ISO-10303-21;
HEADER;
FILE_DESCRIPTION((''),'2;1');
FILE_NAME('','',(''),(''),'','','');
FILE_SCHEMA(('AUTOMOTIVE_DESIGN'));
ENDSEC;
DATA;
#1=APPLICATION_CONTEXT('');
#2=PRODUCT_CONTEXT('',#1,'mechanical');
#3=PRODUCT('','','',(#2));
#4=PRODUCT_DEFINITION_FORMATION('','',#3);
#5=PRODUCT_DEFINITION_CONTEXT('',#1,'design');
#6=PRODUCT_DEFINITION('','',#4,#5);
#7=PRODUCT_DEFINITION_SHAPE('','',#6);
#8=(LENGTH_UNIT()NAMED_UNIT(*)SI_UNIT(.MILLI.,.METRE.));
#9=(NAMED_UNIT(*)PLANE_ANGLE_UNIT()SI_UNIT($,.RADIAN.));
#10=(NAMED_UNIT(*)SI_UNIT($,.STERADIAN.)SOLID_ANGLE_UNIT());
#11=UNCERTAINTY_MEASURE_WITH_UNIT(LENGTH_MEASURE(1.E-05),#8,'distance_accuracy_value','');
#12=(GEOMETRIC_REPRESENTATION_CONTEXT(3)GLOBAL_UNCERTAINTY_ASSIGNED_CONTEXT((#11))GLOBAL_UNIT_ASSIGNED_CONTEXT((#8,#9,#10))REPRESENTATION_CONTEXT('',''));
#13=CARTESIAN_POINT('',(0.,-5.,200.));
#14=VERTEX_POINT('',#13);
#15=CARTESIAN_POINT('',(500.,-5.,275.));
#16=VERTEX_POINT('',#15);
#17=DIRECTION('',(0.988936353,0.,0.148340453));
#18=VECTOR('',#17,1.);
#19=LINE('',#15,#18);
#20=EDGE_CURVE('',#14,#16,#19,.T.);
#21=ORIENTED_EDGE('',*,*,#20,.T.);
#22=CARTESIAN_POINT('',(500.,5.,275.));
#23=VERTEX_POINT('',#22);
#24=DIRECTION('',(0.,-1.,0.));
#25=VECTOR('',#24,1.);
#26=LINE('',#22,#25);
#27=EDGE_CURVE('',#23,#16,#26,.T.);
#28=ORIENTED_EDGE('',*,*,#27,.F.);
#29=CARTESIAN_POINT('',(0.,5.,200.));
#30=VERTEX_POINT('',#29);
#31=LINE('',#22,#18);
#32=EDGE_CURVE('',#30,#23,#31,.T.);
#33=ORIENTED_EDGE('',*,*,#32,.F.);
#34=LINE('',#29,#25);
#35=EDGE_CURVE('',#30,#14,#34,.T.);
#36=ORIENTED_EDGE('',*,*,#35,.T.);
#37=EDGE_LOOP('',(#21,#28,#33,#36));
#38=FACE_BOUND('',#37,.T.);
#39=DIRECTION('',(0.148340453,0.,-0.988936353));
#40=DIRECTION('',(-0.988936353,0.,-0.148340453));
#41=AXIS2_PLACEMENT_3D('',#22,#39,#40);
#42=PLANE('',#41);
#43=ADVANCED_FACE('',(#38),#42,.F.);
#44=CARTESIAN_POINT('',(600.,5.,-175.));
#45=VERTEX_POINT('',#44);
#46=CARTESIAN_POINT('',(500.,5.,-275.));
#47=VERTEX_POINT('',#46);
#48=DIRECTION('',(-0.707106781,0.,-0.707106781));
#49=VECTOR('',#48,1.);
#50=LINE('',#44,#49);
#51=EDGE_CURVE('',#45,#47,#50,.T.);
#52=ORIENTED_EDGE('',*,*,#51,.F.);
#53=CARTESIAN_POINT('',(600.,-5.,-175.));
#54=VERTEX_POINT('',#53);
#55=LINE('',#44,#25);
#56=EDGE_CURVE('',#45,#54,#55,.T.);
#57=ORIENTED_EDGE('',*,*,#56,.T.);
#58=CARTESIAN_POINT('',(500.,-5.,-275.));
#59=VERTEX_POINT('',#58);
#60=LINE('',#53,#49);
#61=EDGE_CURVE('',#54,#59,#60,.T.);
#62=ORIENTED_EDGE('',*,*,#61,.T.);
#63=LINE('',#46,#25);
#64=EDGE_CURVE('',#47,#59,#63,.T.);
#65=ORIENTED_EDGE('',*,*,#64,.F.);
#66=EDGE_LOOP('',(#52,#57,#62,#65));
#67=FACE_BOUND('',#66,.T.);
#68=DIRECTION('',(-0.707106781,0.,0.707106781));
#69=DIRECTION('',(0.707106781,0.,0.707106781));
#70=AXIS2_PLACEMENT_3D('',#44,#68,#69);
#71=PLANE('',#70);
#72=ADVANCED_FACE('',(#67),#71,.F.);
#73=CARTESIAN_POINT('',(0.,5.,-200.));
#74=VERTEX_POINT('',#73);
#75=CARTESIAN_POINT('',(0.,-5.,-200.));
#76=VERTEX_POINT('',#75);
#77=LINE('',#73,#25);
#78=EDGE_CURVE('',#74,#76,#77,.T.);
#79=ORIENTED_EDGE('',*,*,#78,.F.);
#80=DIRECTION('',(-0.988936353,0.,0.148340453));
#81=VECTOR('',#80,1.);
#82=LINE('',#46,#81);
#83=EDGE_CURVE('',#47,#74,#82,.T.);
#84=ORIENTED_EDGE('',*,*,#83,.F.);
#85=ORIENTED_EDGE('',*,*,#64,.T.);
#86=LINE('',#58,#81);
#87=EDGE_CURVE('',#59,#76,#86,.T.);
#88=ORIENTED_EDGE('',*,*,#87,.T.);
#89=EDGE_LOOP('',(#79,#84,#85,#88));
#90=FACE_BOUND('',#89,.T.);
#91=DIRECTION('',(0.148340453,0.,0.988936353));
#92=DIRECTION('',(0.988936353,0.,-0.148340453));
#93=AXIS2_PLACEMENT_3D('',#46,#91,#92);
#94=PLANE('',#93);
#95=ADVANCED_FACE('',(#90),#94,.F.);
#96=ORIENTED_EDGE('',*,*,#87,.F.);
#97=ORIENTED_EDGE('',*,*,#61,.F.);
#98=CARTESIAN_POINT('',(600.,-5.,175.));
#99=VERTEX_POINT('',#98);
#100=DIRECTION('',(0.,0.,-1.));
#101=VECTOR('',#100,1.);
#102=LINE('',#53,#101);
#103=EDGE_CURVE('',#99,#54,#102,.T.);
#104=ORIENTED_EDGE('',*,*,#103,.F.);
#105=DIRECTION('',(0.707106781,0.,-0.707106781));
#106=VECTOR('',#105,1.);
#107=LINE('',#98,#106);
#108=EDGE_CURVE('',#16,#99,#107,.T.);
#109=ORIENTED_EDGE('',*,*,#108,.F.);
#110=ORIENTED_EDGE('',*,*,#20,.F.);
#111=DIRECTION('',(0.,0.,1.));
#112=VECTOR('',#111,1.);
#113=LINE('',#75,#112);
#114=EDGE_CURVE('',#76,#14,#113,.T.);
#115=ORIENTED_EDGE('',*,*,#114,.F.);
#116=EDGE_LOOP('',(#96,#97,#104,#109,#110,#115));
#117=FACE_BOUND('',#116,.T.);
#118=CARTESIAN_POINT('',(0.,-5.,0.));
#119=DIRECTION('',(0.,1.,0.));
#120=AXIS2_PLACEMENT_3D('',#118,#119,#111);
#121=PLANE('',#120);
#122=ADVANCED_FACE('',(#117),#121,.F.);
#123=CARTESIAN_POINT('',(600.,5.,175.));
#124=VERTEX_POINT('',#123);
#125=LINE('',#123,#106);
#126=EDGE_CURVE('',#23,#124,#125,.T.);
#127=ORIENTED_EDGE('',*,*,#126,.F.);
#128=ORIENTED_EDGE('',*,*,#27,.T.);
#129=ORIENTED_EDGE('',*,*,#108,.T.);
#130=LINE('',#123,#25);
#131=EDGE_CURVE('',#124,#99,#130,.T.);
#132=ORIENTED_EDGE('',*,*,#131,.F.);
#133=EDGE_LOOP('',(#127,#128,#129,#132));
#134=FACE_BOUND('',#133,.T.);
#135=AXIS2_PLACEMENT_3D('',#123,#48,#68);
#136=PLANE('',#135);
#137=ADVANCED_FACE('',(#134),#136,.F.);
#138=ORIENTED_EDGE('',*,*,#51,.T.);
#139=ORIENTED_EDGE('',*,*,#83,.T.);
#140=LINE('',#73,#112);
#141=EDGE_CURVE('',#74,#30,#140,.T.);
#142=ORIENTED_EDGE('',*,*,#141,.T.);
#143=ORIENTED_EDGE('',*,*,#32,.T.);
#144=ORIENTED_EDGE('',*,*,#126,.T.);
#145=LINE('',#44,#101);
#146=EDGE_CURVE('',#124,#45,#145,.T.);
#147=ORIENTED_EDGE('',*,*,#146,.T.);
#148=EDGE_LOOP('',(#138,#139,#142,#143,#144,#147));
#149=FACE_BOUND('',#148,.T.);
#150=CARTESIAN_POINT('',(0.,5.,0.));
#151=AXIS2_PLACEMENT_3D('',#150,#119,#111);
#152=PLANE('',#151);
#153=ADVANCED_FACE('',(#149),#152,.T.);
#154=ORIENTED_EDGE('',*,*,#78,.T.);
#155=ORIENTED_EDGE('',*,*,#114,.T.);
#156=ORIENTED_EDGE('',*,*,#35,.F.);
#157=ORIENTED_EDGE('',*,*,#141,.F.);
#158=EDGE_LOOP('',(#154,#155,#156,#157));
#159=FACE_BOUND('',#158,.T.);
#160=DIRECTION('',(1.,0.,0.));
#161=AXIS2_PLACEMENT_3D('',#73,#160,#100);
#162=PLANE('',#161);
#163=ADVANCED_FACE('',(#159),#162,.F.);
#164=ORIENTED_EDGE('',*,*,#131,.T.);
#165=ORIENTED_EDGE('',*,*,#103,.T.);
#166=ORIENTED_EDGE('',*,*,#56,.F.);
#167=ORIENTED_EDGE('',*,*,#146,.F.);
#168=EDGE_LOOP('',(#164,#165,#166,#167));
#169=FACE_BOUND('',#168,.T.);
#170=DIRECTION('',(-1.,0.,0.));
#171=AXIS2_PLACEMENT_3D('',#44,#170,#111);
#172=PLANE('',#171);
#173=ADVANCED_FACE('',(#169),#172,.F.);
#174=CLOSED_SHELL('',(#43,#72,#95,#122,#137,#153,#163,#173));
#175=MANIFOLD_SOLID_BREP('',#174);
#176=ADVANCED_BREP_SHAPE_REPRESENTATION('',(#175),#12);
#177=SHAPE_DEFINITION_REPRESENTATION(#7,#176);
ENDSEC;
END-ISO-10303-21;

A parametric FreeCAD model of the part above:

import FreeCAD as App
import Part
import Sketcher
from FreeCAD import Vector
Q = App.Units.Quantity


def add_polygon(sketch, points):
    """Adds a closed chain of lines whose ends are joined by coincident constraints."""
    first, n = sketch.GeometryCount, len(points)
    for a, b in zip(points, points[1:] + points[:1]):
        sketch.addGeometry(Part.LineSegment(App.Vector(*a, 0), App.Vector(*b, 0)), False)
    for i in range(n):
        sketch.addConstraint(Sketcher.Constraint("Coincident", first + i, 2, first + (i + 1) % n, 1))

doc = App.newDocument("Part")
body = doc.addObject("PartDesign::Body", "Body")

sketch1 = doc.addObject("Sketcher::SketchObject", "Sketch")
body.addObject(sketch1)
sketch1.AttachmentSupport = (doc.XZ_Plane, [""])
sketch1.MapMode = "FlatFace"
add_polygon(sketch1, [(0, -200), (0, 200), (500, 275), (600, 175), (600, -175), (500, -275)])
sketch1.addConstraint(Sketcher.Constraint("Vertical", 0))
sketch1.addConstraint(Sketcher.Constraint("Vertical", 3))
sketch1.addConstraint(Sketcher.Constraint("Symmetric", 0, 2, 5, 2, -1, 1))
sketch1.addConstraint(Sketcher.Constraint("Symmetric", 1, 2, 4, 2, -1))
sketch1.addConstraint(Sketcher.Constraint("Perpendicular", 2, 4))
sketch1.addConstraint(Sketcher.Constraint("Equal", 2, 4))
sketch1.addConstraint(Sketcher.Constraint("DistanceY", 0, 1, 0, 2, Q("400 mm")))
sketch1.addConstraint(Sketcher.Constraint("DistanceY", 3, 2, 3, 1, Q("350 mm")))
sketch1.addConstraint(Sketcher.Constraint("DistanceX", -1, 1, 1, 2, Q("500 mm")))
sketch1.addConstraint(Sketcher.Constraint("DistanceY", -1, 1, 1, 2, Q("275 mm")))
pad1 = doc.addObject("PartDesign::Pad", "Pad")
body.addObject(pad1)
pad1.Profile = sketch1
pad1.Length = 10
pad1.Midplane = True

doc.recompute()
